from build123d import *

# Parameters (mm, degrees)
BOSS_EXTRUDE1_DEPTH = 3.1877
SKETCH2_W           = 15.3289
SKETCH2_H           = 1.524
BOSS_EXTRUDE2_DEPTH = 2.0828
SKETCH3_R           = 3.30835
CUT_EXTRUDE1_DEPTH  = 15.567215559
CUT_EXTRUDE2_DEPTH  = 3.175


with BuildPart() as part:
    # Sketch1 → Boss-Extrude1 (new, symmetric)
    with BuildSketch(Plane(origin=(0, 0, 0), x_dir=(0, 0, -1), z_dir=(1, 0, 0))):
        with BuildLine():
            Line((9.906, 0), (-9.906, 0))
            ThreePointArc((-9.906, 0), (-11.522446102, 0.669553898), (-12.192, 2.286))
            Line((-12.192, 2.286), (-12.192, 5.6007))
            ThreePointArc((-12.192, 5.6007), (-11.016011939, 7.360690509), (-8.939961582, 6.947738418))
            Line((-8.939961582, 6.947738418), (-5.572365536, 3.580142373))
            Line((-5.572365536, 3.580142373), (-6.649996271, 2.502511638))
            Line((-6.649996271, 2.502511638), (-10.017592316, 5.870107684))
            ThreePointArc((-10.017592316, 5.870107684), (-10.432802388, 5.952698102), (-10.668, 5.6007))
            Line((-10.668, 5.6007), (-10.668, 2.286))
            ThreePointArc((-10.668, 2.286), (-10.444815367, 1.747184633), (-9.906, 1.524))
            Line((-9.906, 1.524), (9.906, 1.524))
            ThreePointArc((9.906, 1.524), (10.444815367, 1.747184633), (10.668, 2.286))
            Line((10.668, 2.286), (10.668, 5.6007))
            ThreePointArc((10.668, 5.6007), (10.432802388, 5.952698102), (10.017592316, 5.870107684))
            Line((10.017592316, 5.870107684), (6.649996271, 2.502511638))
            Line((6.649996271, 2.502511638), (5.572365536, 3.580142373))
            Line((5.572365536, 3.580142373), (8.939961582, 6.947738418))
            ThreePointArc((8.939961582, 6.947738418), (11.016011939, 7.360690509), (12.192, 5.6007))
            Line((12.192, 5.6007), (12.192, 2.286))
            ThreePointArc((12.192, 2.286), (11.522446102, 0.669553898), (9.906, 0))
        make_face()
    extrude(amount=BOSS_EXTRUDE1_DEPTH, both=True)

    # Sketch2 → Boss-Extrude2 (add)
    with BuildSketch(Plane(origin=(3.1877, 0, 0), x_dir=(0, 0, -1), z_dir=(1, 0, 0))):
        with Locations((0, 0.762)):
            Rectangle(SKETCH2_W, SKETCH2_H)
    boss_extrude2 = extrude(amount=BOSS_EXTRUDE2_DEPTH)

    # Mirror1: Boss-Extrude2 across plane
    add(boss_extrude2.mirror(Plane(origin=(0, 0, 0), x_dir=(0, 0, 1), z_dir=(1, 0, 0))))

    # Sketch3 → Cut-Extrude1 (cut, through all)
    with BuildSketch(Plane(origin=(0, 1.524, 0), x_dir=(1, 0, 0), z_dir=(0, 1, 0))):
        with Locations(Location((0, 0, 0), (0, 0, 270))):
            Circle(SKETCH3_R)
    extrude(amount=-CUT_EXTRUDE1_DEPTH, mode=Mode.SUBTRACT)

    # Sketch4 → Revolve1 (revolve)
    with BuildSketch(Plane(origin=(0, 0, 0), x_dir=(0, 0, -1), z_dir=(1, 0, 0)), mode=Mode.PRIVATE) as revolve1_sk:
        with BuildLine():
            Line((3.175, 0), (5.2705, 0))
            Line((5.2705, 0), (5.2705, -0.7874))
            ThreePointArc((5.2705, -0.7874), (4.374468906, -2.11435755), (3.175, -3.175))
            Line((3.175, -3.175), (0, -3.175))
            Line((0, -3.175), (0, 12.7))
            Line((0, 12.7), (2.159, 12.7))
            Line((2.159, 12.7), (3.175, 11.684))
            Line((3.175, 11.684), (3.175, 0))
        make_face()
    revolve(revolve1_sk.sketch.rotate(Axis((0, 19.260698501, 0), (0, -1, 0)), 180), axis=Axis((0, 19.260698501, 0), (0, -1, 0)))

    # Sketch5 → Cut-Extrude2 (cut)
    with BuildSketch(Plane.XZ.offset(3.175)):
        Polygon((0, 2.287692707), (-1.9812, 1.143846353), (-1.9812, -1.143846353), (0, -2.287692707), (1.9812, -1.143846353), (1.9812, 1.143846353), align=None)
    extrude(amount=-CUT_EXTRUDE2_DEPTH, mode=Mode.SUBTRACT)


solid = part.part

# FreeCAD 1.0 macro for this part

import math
import FreeCAD as App
import Part
import Sketcher
from FreeCAD import Vector
Q = App.Units.Quantity

doc = App.newDocument("Part")
body = doc.addObject("PartDesign::Body", "Body")

sketch1 = body.newObject("Sketcher::SketchObject", "Sketch")
sketch1.AttachmentSupport = (doc.getObject("YZ_Plane"), [""])
sketch1.MapMode = "FlatFace"
sketch1.addGeometry([
    Part.LineSegment(Vector(0, 9.91, 0), Vector(0, -9.91, 0)),
    Part.ArcOfCircle(Part.Circle(Vector(2.29, -9.91, 0), Vector(0, 0, 1), 2.29), math.radians(180), math.radians(270)),
    Part.LineSegment(Vector(2.29, -12.19, 0), Vector(5.6, -12.19, 0)),
    Part.ArcOfCircle(Part.Circle(Vector(5.6, -10.29, 0), Vector(0, 0, 1), 1.91), math.radians(-90), math.radians(45)),
    Part.LineSegment(Vector(6.95, -8.94, 0), Vector(3.58, -5.57, 0)),
    Part.LineSegment(Vector(3.58, -5.57, 0), Vector(2.5, -6.65, 0)),
    Part.LineSegment(Vector(2.5, -6.65, 0), Vector(5.87, -10.02, 0)),
    Part.ArcOfCircle(Part.Circle(Vector(5.6, -10.29, 0), Vector(0, 0, 1), 0.38), math.radians(-90), math.radians(45)),
    Part.LineSegment(Vector(5.6, -10.67, 0), Vector(2.29, -10.67, 0)),
    Part.ArcOfCircle(Part.Circle(Vector(2.29, -9.91, 0), Vector(0, 0, 1), 0.76), math.radians(-180), math.radians(-90)),
    Part.LineSegment(Vector(1.52, -9.91, 0), Vector(1.52, 9.91, 0)),
    Part.ArcOfCircle(Part.Circle(Vector(2.29, 9.91, 0), Vector(0, 0, 1), 0.76), math.radians(90), math.radians(180)),
    Part.LineSegment(Vector(2.29, 10.67, 0), Vector(5.6, 10.67, 0)),
    Part.ArcOfCircle(Part.Circle(Vector(5.6, 10.29, 0), Vector(0, 0, 1), 0.38), math.radians(-45), math.radians(90)),
    Part.LineSegment(Vector(5.87, 10.02, 0), Vector(2.5, 6.65, 0)),
    Part.LineSegment(Vector(2.5, 6.65, 0), Vector(3.58, 5.57, 0)),
    Part.LineSegment(Vector(3.58, 5.57, 0), Vector(6.95, 8.94, 0)),
    Part.ArcOfCircle(Part.Circle(Vector(5.6, 10.29, 0), Vector(0, 0, 1), 1.91), math.radians(-45), math.radians(90)),
    Part.LineSegment(Vector(5.6, 12.19, 0), Vector(2.29, 12.19, 0)),
    Part.ArcOfCircle(Part.Circle(Vector(2.29, 9.91, 0), Vector(0, 0, 1), 2.29), math.radians(90), math.radians(180)),
], False)
sketch1.addConstraint([
    Sketcher.Constraint("Tangent", 0, 2, 1, 1),
    Sketcher.Constraint("Tangent", 1, 2, 2, 1),
    Sketcher.Constraint("Tangent", 2, 2, 3, 1),
    Sketcher.Constraint("Tangent", 3, 2, 4, 1),
    Sketcher.Constraint("Coincident", 4, 2, 5, 1),
    Sketcher.Constraint("Coincident", 5, 2, 6, 1),
    Sketcher.Constraint("Tangent", 6, 2, 7, 2),
    Sketcher.Constraint("Tangent", 7, 1, 8, 1),
    Sketcher.Constraint("Tangent", 8, 2, 9, 2),
    Sketcher.Constraint("Tangent", 9, 1, 10, 1),
    Sketcher.Constraint("Tangent", 10, 2, 11, 2),
    Sketcher.Constraint("Tangent", 11, 1, 12, 1),
    Sketcher.Constraint("Tangent", 12, 2, 13, 2),
    Sketcher.Constraint("Tangent", 13, 1, 14, 1),
    Sketcher.Constraint("Coincident", 14, 2, 15, 1),
    Sketcher.Constraint("Coincident", 15, 2, 16, 1),
    Sketcher.Constraint("Tangent", 16, 2, 17, 1),
    Sketcher.Constraint("Tangent", 17, 2, 18, 1),
    Sketcher.Constraint("Tangent", 18, 2, 19, 1),
    Sketcher.Constraint("Tangent", 19, 2, 0, 1),
    Sketcher.Constraint("Vertical", 0),
    Sketcher.Constraint("Horizontal", 2),
    Sketcher.Constraint("Horizontal", 8),
    Sketcher.Constraint("Vertical", 10),
    Sketcher.Constraint("Horizontal", 12),
    Sketcher.Constraint("Horizontal", 18),
    Sketcher.Constraint("Coincident", 7, 3, 3, 3),
    Sketcher.Constraint("Coincident", 9, 3, 1, 3),
    Sketcher.Constraint("Coincident", 17, 3, 13, 3),
    Sketcher.Constraint("Coincident", 19, 3, 11, 3),
    Sketcher.Constraint("Equal", 9, 11),
    Sketcher.Constraint("Equal", 7, 13),
    Sketcher.Constraint("Symmetric", 0, 2, 19, 2, -1, 1),
    Sketcher.Constraint("Symmetric", 6, 2, 13, 1, -1),
    Sketcher.Constraint("Symmetric", 4, 2, 15, 2, -1),
    Sketcher.Constraint("Perpendicular", 4, 5),
    Sketcher.Constraint("Perpendicular", 5, 6),
    Sketcher.Constraint("Perpendicular", 6, 14),
    Sketcher.Constraint("Perpendicular", 14, 15),
    Sketcher.Constraint("Radius", 1, Q("0.09 in")),
    Sketcher.Constraint("Radius", 9, Q("0.03 in")),
    Sketcher.Constraint("Radius", 3, Q("0.075 in")),
    Sketcher.Constraint("DistanceY", 0, 2, 0, 1, Q("0.78 in")),
    Sketcher.Constraint("Distance", 4, Q("0.1875 in")),
    Sketcher.Constraint("DistanceX", 2, 1, 2, 2, Q("0.1305 in")),
])
pad1 = body.newObject("PartDesign::Pad", "Pad")
pad1.Profile = sketch1
pad1.Length = Q("0.251 in")
pad1.Midplane = True

sketch2 = body.newObject("Sketcher::SketchObject", "Sketch001")
sketch2.AttachmentSupport = (doc.getObject("YZ_Plane"), [""])
sketch2.MapMode = "FlatFace"
sketch2.AttachmentOffset = App.Placement(Vector(0, 0, 0.1255 * 25.4), App.Rotation())
sketch2.addGeometry([
    Part.LineSegment(Vector(1.5, 7.7, 0), Vector(0, 7.7, 0)),
    Part.LineSegment(Vector(0, 7.7, 0), Vector(0, -7.7, 0)),
    Part.LineSegment(Vector(0, -7.7, 0), Vector(1.5, -7.7, 0)),
    Part.LineSegment(Vector(1.5, -7.7, 0), Vector(1.5, 7.7, 0)),
], False)
sketch2.addConstraint([
    Sketcher.Constraint("Coincident", 0, 2, 1, 1),
    Sketcher.Constraint("Coincident", 1, 2, 2, 1),
    Sketcher.Constraint("Coincident", 2, 2, 3, 1),
    Sketcher.Constraint("Coincident", 3, 2, 0, 1),
    Sketcher.Constraint("Horizontal", 0),
    Sketcher.Constraint("Vertical", 1),
    Sketcher.Constraint("Horizontal", 2),
    Sketcher.Constraint("Vertical", 3),
    Sketcher.Constraint("Symmetric", 0, 2, 1, 2, -1, 1),
    Sketcher.Constraint("DistanceX", 0, 2, 0, 1, Q("0.06 in")),
    Sketcher.Constraint("DistanceY", 1, 2, 1, 1, Q("0.6035 in")),
])
pad2 = body.newObject("PartDesign::Pad", "Pad001")
pad2.Profile = sketch2
pad2.Length = Q("0.082 in")
doc.recompute()

mirrored = body.newObject("PartDesign::Mirrored", "Mirrored")
mirrored.Originals = [pad2]
mirrored.MirrorPlane = (doc.getObject("YZ_Plane"), [""])
body.Tip = mirrored

sketch3 = body.newObject("Sketcher::SketchObject", "Sketch002")
sketch3.AttachmentSupport = (doc.getObject("XZ_Plane"), [""])
sketch3.MapMode = "FlatFace"
sketch3.AttachmentOffset = App.Placement(Vector(0, 0, -0.06 * 25.4), App.Rotation())
sketch3.addGeometry(Part.Circle(Vector(0, 0, 0), Vector(0, 0, 1), 3.3), False)
sketch3.addConstraint([
    Sketcher.Constraint("Coincident", 0, 3, -1, 1),
    Sketcher.Constraint("Diameter", 0, Q("0.2605 in")),
])
pocket1 = body.newObject("PartDesign::Pocket", "Pocket")
pocket1.Profile = sketch3
pocket1.Type = "ThroughAll"
pocket1.Reversed = True

sketch4 = body.newObject("Sketcher::SketchObject", "Sketch003")
sketch4.AttachmentSupport = (doc.getObject("YZ_Plane"), [""])
sketch4.MapMode = "FlatFace"
sketch4.addGeometry([
    Part.LineSegment(Vector(0, -5.3, 0), Vector(0, -3.2, 0)),
    Part.LineSegment(Vector(0, -3.2, 0), Vector(11.7, -3.2, 0)),
    Part.LineSegment(Vector(11.7, -3.2, 0), Vector(12.7, -2.2, 0)),
    Part.LineSegment(Vector(12.7, -2.2, 0), Vector(12.7, 0, 0)),
    Part.LineSegment(Vector(12.7, 0, 0), Vector(-3.2, 0, 0)),
    Part.LineSegment(Vector(-3.2, 0, 0), Vector(-3.2, -3.2, 0)),
    Part.ArcOfCircle(Part.Circle(Vector(2.1, 0.4, 0), Vector(0, 0, 1), 6.4), math.radians(-146), math.radians(-117)),
    Part.LineSegment(Vector(-0.8, -5.3, 0), Vector(0, -5.3, 0)),
], False)
sketch4.addConstraint([
    Sketcher.Constraint("Coincident", 0, 2, 1, 1),
    Sketcher.Constraint("Coincident", 1, 2, 2, 1),
    Sketcher.Constraint("Coincident", 2, 2, 3, 1),
    Sketcher.Constraint("Coincident", 3, 2, 4, 1),
    Sketcher.Constraint("Coincident", 4, 2, 5, 1),
    Sketcher.Constraint("Coincident", 5, 2, 6, 1),
    Sketcher.Constraint("Coincident", 6, 2, 7, 1),
    Sketcher.Constraint("Coincident", 7, 2, 0, 1),
    Sketcher.Constraint("Vertical", 0),
    Sketcher.Constraint("Horizontal", 1),
    Sketcher.Constraint("Vertical", 3),
    Sketcher.Constraint("Horizontal", 4),
    Sketcher.Constraint("Vertical", 5),
    Sketcher.Constraint("Horizontal", 7),
    Sketcher.Constraint("PointOnObject", 0, 2, -2),
    Sketcher.Constraint("PointOnObject", 3, 2, -1),
    Sketcher.Constraint("Horizontal", 1, 2, 5, 2),
    Sketcher.Constraint("Radius", 6, Q("0.25 in")),
    Sketcher.Constraint("Angle", 2, Q("45 deg")),
    Sketcher.Constraint("DistanceX", 1, 1, 1, 2, Q("0.46 in")),
    Sketcher.Constraint("DistanceX", -1, 1, 2, 2, Q("0.5 in")),
    Sketcher.Constraint("DistanceX", 4, 2, 4, 1, Q("0.625 in")),
    Sketcher.Constraint("DistanceX", 7, 1, 7, 2, Q("0.031 in")),
    Sketcher.Constraint("DistanceY", 3, 1, 3, 2, Q("0.085 in")),
    Sketcher.Constraint("DistanceY", 0, 1, 0, 2, Q("0.0825 in")),
])
revolution = body.newObject("PartDesign::Revolution", "Revolution")
revolution.Profile = sketch4
revolution.ReferenceAxis = (sketch4, ["H_Axis"])
revolution.Angle = 360

sketch5 = body.newObject("Sketcher::SketchObject", "Sketch004")
sketch5.AttachmentSupport = (doc.getObject("XZ_Plane"), [""])
sketch5.MapMode = "FlatFace"
sketch5.AttachmentOffset = App.Placement(Vector(0, 0, 0.125 * 25.4), App.Rotation())
sketch5.addGeometry([
    Part.LineSegment(Vector(0, 2.3, 0), Vector(-2, 1.1, 0)),
    Part.LineSegment(Vector(-2, 1.1, 0), Vector(-2, -1.1, 0)),
    Part.LineSegment(Vector(-2, -1.1, 0), Vector(0, -2.3, 0)),
    Part.LineSegment(Vector(0, -2.3, 0), Vector(2, -1.1, 0)),
    Part.LineSegment(Vector(2, -1.1, 0), Vector(2, 1.1, 0)),
    Part.LineSegment(Vector(2, 1.1, 0), Vector(0, 2.3, 0)),
], False)
sketch5.addConstraint([
    Sketcher.Constraint("Coincident", 0, 2, 1, 1),
    Sketcher.Constraint("Coincident", 1, 2, 2, 1),
    Sketcher.Constraint("Coincident", 2, 2, 3, 1),
    Sketcher.Constraint("Coincident", 3, 2, 4, 1),
    Sketcher.Constraint("Coincident", 4, 2, 5, 1),
    Sketcher.Constraint("Coincident", 5, 2, 0, 1),
    Sketcher.Constraint("Vertical", 1),
    Sketcher.Constraint("Vertical", 4),
    Sketcher.Constraint("Symmetric", 0, 2, 3, 2, -1, 1),
    Sketcher.Constraint("Symmetric", 2, 2, 5, 2, -1, 1),
    Sketcher.Constraint("PointOnObject", 2, 2, -2),
    Sketcher.Constraint("Parallel", 2, 5),
    Sketcher.Constraint("Horizontal", 1, 2, 3, 2),
    Sketcher.Constraint("Angle", 0, Q("-150 deg")),
    Sketcher.Constraint("DistanceX", 0, 2, -1, 1, Q("0.078 in")),
    Sketcher.Constraint("DistanceY", 2, 2, 0, 2, Q("0.1351 in")),
])
pocket2 = body.newObject("PartDesign::Pocket", "Pocket001")
pocket2.Profile = sketch5
pocket2.Length = Q("0.125 in")

doc.recompute()
